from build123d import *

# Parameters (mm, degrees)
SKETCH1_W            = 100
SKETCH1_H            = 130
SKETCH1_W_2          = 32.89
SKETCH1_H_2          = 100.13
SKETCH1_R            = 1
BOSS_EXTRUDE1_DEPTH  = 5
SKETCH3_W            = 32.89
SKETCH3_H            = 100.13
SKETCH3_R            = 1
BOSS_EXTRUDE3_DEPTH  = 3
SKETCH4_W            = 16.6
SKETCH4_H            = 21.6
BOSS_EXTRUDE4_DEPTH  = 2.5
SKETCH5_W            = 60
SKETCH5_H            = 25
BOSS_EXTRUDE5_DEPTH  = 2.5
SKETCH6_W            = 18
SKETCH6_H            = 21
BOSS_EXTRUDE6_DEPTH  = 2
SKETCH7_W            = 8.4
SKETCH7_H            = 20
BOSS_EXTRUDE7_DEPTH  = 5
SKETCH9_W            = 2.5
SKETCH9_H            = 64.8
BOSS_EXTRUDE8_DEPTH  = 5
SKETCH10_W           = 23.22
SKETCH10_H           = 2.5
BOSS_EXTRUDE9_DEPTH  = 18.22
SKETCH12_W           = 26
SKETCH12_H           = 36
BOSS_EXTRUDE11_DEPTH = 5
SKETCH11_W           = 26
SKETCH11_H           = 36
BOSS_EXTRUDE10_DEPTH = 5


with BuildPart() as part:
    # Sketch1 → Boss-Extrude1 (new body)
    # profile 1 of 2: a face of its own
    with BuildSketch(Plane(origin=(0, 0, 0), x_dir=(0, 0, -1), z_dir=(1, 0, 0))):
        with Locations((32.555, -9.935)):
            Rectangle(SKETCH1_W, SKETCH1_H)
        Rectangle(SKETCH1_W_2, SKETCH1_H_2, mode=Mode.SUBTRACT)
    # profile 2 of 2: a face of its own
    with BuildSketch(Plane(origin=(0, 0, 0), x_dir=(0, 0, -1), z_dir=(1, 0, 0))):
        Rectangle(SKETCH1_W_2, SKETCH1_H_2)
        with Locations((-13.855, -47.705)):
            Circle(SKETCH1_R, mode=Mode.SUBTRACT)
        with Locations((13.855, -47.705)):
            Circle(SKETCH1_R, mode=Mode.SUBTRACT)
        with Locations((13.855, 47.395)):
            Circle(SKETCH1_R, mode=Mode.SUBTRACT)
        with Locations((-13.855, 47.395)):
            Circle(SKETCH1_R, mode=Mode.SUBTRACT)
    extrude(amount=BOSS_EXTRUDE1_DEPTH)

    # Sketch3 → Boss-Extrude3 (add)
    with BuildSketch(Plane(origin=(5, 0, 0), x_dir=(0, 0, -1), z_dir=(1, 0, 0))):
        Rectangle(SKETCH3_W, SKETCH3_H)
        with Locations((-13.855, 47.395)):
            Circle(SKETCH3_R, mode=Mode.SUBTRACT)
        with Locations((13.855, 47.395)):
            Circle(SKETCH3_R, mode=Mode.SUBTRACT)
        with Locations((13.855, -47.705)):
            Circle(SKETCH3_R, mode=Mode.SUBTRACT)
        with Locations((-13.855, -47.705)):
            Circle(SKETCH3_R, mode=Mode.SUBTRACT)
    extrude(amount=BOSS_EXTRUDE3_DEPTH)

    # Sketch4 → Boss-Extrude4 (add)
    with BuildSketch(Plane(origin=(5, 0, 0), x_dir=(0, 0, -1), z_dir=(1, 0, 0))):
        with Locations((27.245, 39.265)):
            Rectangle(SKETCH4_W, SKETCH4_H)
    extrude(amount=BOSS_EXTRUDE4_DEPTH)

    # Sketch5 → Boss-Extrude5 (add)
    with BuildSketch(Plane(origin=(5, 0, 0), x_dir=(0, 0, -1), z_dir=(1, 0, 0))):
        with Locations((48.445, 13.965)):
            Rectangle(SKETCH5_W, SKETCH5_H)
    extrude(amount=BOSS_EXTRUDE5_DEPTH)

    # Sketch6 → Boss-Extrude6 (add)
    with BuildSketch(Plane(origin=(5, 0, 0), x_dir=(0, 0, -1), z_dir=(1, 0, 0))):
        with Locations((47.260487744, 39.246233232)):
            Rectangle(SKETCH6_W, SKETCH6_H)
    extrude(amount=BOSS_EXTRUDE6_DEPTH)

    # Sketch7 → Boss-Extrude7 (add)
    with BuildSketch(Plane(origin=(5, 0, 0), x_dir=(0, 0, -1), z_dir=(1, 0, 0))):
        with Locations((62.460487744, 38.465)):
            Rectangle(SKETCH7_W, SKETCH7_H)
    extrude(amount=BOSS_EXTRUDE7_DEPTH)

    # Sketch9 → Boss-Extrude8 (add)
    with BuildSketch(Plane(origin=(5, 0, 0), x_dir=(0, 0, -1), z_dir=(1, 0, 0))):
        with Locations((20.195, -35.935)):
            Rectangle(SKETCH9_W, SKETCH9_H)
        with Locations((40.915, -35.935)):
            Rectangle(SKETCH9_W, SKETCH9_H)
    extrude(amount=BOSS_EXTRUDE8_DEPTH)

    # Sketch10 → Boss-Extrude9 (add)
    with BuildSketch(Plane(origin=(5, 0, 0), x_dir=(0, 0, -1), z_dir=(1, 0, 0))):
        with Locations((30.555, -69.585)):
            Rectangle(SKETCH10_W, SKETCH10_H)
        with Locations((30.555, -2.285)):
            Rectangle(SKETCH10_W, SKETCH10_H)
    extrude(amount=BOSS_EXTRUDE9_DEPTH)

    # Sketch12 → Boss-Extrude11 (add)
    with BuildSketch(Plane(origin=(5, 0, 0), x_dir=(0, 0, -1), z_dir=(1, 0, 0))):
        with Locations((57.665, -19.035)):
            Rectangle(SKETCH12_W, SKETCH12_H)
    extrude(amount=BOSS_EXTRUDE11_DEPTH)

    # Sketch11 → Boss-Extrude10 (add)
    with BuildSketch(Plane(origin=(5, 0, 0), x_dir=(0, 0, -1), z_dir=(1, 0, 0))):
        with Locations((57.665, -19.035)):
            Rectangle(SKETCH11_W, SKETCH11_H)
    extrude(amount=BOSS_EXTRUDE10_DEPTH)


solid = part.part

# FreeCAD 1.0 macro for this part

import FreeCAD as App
import Part
import Sketcher

V = App.Vector


def add_polygon(sketch, points):
    """Adds a closed chain of lines whose ends are joined by coincident constraints."""
    first, n = sketch.GeometryCount, len(points)
    for a, b in zip(points, points[1:] + points[:1]):
        sketch.addGeometry(Part.LineSegment(App.Vector(*a, 0), App.Vector(*b, 0)), False)
    for i in range(n):
        sketch.addConstraint(Sketcher.Constraint("Coincident", first + i, 2, first + (i + 1) % n, 1))

doc = App.newDocument("Part")
params = doc.addObject("Spreadsheet::Sheet", "Params")
for row, (alias, value) in enumerate([
    ("sketch1_diameter", "2 mm"),
    ("sketch1_width", "130 mm"),
    ("sketch1_height", "100 mm"),
    ("pad1_length", "5 mm"),
    ("sketch2_diameter", "2 mm"),
    ("sketch2_width", "100.13 mm"),
    ("sketch2_height", "32.89 mm"),
    ("pad2_length", "3 mm"),
    ("sketch3_width", "21.6 mm"),
    ("sketch3_height", "16.6 mm"),
    ("pad3_length", "2.5 mm"),
    ("sketch4_width", "25 mm"),
    ("sketch4_height", "60 mm"),
    ("pad4_length", "2.5 mm"),
    ("sketch5_width", "21 mm"),
    ("sketch5_height", "18 mm"),
    ("pad5_length", "2 mm"),
    ("sketch6_width", "20 mm"),
    ("sketch6_height", "8.4 mm"),
    ("pad6_length", "5 mm"),
    ("sketch7_width", "64.8 mm"),
    ("sketch7_height", "2.5 mm"),
    ("pad7_length", "5 mm"),
    ("sketch8_width", "2.5 mm"),
    ("sketch8_height", "23.22 mm"),
    ("pad8_length", "18.22 mm"),
    ("sketch9_width", "36 mm"),
    ("sketch9_height", "26 mm"),
    ("pad9_length", "5 mm"),
    ("sketch10_width", "36 mm"),
    ("sketch10_height", "26 mm"),
    ("pad10_length", "5 mm"),
], start=1):
    params.set(f"A{row}", alias)
    params.set(f"B{row}", "=" + value)
    params.setAlias(f"B{row}", alias)

body = doc.addObject("PartDesign::Body", "Body")

# Sketch on YZ plane
sketch1 = body.newObject("Sketcher::SketchObject", "Sketch")
sketch1.AttachmentSupport = (doc.getObject("YZ_Plane"), [""])
sketch1.MapMode = "FlatFace"
add_polygon(sketch1, [(55.1, 17.4), (-74.9, 17.4), (-74.9, -82.6), (55.1, -82.6)])  # lines 0-3
sketch1.addGeometry(Part.Circle(V(-47.7, 13.9, 0), V(0, 0, 1), 1), False)  # 4
sketch1.addGeometry(Part.Circle(V(47.4, -13.9, 0), V(0, 0, 1), 1), False)  # 5
sketch1.addGeometry(Part.Circle(V(-47.7, -13.9, 0), V(0, 0, 1), 1), False)  # 6
sketch1.addGeometry(Part.Circle(V(47.4, 13.9, 0), V(0, 0, 1), 1), False)  # 7
sketch1.addConstraint(Sketcher.Constraint("Horizontal", 0))
sketch1.addConstraint(Sketcher.Constraint("Vertical", 1))
sketch1.addConstraint(Sketcher.Constraint("Horizontal", 2))
sketch1.addConstraint(Sketcher.Constraint("Vertical", 3))
sketch1.addConstraint(Sketcher.Constraint("Equal", 4, 5))
sketch1.addConstraint(Sketcher.Constraint("Equal", 5, 6))
sketch1.addConstraint(Sketcher.Constraint("Equal", 6, 7))
sketch1.addConstraint(Sketcher.Constraint("Symmetric", 4, 3, 6, 3, -1))
sketch1.addConstraint(Sketcher.Constraint("Symmetric", 5, 3, 7, 3, -1))
sketch1.addConstraint(Sketcher.Constraint("Horizontal", 5, 3, 6, 3))
sketch1.addConstraint(Sketcher.Constraint("Diameter", 4, 2.0))
sketch1.addConstraint(Sketcher.Constraint("DistanceX", 0, 2, 0, 1, 130.0))
sketch1.addConstraint(Sketcher.Constraint("DistanceY", 1, 2, 1, 1, 100.0))
sketch1.addConstraint(Sketcher.Constraint("DistanceX", 4, 3, 5, 3, 95.1))
sketch1.addConstraint(Sketcher.Constraint("DistanceY", 6, 3, 0, 2, 31.3))
sketch1.addConstraint(Sketcher.Constraint("DistanceY", 5, 3, 4, 3, 27.71))
sketch1.addConstraint(Sketcher.Constraint("DistanceX", 0, 2, 4, 3, 27.23))
sketch1.addConstraint(Sketcher.Constraint("DistanceX", 4, 3, -1, 1, 47.705))
sketch1.setExpression("Constraints[14]", "Params.sketch1_diameter")
sketch1.setExpression("Constraints[15]", "Params.sketch1_width")
sketch1.setExpression("Constraints[16]", "Params.sketch1_height")
pad1 = body.newObject("PartDesign::Pad", "Pad")
pad1.Profile = sketch1
pad1.setExpression("Length", "Params.pad1_length")

# Sketch on YZ plane
sketch2 = body.newObject("Sketcher::SketchObject", "Sketch001")
sketch2.AttachmentSupport = (doc.getObject("YZ_Plane"), [""])
sketch2.MapMode = "FlatFace"
sketch2.AttachmentOffset = App.Placement(V(0, 0, 5), App.Rotation())
add_polygon(sketch2, [(50.1, 16.4), (-50.1, 16.4), (-50.1, -16.4), (50.1, -16.4)])  # lines 0-3
sketch2.addGeometry(Part.Circle(V(-47.7, 13.9, 0), V(0, 0, 1), 1), False)  # 4
sketch2.addGeometry(Part.Circle(V(-47.7, -13.9, 0), V(0, 0, 1), 1), False)  # 5
sketch2.addGeometry(Part.Circle(V(47.4, 13.9, 0), V(0, 0, 1), 1), False)  # 6
sketch2.addGeometry(Part.Circle(V(47.4, -13.9, 0), V(0, 0, 1), 1), False)  # 7
sketch2.addConstraint(Sketcher.Constraint("Horizontal", 0))
sketch2.addConstraint(Sketcher.Constraint("Vertical", 1))
sketch2.addConstraint(Sketcher.Constraint("Horizontal", 2))
sketch2.addConstraint(Sketcher.Constraint("Vertical", 3))
sketch2.addConstraint(Sketcher.Constraint("Equal", 4, 5))
sketch2.addConstraint(Sketcher.Constraint("Equal", 5, 6))
sketch2.addConstraint(Sketcher.Constraint("Equal", 6, 7))
sketch2.addConstraint(Sketcher.Constraint("Symmetric", 0, 2, 2, 2, -1, 1))
sketch2.addConstraint(Sketcher.Constraint("Symmetric", 4, 3, 5, 3, -1))
sketch2.addConstraint(Sketcher.Constraint("Symmetric", 6, 3, 7, 3, -1))
sketch2.addConstraint(Sketcher.Constraint("Horizontal", 4, 3, 6, 3))
sketch2.addConstraint(Sketcher.Constraint("Diameter", 4, 2.0))
sketch2.addConstraint(Sketcher.Constraint("DistanceX", 0, 2, 0, 1, 100.13))
sketch2.addConstraint(Sketcher.Constraint("DistanceY", 1, 2, 1, 1, 32.89))
sketch2.addConstraint(Sketcher.Constraint("DistanceX", 4, 3, 6, 3, 95.1))
sketch2.addConstraint(Sketcher.Constraint("DistanceY", 5, 3, 0, 2, 30.3))
sketch2.addConstraint(Sketcher.Constraint("DistanceX", 0, 2, 4, 3, 2.36))
sketch2.setExpression("Constraints[15]", "Params.sketch2_diameter")
sketch2.setExpression("Constraints[16]", "Params.sketch2_width")
sketch2.setExpression("Constraints[17]", "Params.sketch2_height")
pad2 = body.newObject("PartDesign::Pad", "Pad001")
pad2.Profile = sketch2
pad2.setExpression("Length", "Params.pad2_length")

# Sketch on YZ plane
sketch3 = body.newObject("Sketcher::SketchObject", "Sketch002")
sketch3.AttachmentSupport = (doc.getObject("YZ_Plane"), [""])
sketch3.MapMode = "FlatFace"
sketch3.AttachmentOffset = App.Placement(V(0, 0, 5), App.Rotation())
add_polygon(sketch3, [(50, -19), (28, -19), (28, -36), (50, -36)])  # lines 0-3
sketch3.addConstraint(Sketcher.Constraint("Horizontal", 0))
sketch3.addConstraint(Sketcher.Constraint("Vertical", 1))
sketch3.addConstraint(Sketcher.Constraint("Horizontal", 2))
sketch3.addConstraint(Sketcher.Constraint("Vertical", 3))
sketch3.addConstraint(Sketcher.Constraint("DistanceX", 0, 2, 0, 1, 21.6))
sketch3.addConstraint(Sketcher.Constraint("DistanceY", 1, 2, 1, 1, 16.6))
sketch3.addConstraint(Sketcher.Constraint("DistanceX", -1, 1, 0, 2, 28.465))
sketch3.addConstraint(Sketcher.Constraint("DistanceY", 0, 2, -1, 1, 18.945))
sketch3.setExpression("Constraints[8]", "Params.sketch3_width")
sketch3.setExpression("Constraints[9]", "Params.sketch3_height")
pad3 = body.newObject("PartDesign::Pad", "Pad002")
pad3.Profile = sketch3
pad3.setExpression("Length", "Params.pad3_length")

# Sketch on YZ plane
sketch4 = body.newObject("Sketcher::SketchObject", "Sketch003")
sketch4.AttachmentSupport = (doc.getObject("YZ_Plane"), [""])
sketch4.MapMode = "FlatFace"
sketch4.AttachmentOffset = App.Placement(V(0, 0, 5), App.Rotation())
add_polygon(sketch4, [(26, -18), (1, -18), (1, -78), (26, -78)])  # lines 0-3
sketch4.addConstraint(Sketcher.Constraint("Horizontal", 0))
sketch4.addConstraint(Sketcher.Constraint("Vertical", 1))
sketch4.addConstraint(Sketcher.Constraint("Horizontal", 2))
sketch4.addConstraint(Sketcher.Constraint("Vertical", 3))
sketch4.addConstraint(Sketcher.Constraint("DistanceX", 0, 2, 0, 1, 25.0))
sketch4.addConstraint(Sketcher.Constraint("DistanceY", 1, 2, 1, 1, 60.0))
sketch4.addConstraint(Sketcher.Constraint("DistanceX", -1, 1, 0, 2, 1.465))
sketch4.addConstraint(Sketcher.Constraint("DistanceY", 0, 2, -1, 1, 18.445))
sketch4.setExpression("Constraints[8]", "Params.sketch4_width")
sketch4.setExpression("Constraints[9]", "Params.sketch4_height")
pad4 = body.newObject("PartDesign::Pad", "Pad003")
pad4.Profile = sketch4
pad4.setExpression("Length", "Params.pad4_length")

# Sketch on YZ plane
sketch5 = body.newObject("Sketcher::SketchObject", "Sketch004")
sketch5.AttachmentSupport = (doc.getObject("YZ_Plane"), [""])
sketch5.MapMode = "FlatFace"
sketch5.AttachmentOffset = App.Placement(V(0, 0, 5), App.Rotation())
add_polygon(sketch5, [(50, -38), (29, -38), (29, -56), (50, -56)])  # lines 0-3
sketch5.addConstraint(Sketcher.Constraint("Horizontal", 0))
sketch5.addConstraint(Sketcher.Constraint("Vertical", 1))
sketch5.addConstraint(Sketcher.Constraint("Horizontal", 2))
sketch5.addConstraint(Sketcher.Constraint("Vertical", 3))
sketch5.addConstraint(Sketcher.Constraint("DistanceX", 0, 2, 0, 1, 21.0))
sketch5.addConstraint(Sketcher.Constraint("DistanceY", 1, 2, 1, 1, 18.0))
sketch5.addConstraint(Sketcher.Constraint("DistanceX", -1, 1, 0, 2, 28.746233))
sketch5.addConstraint(Sketcher.Constraint("DistanceY", 0, 2, -1, 1, 38.260488))
sketch5.setExpression("Constraints[8]", "Params.sketch5_width")
sketch5.setExpression("Constraints[9]", "Params.sketch5_height")
pad5 = body.newObject("PartDesign::Pad", "Pad004")
pad5.Profile = sketch5
pad5.setExpression("Length", "Params.pad5_length")

# Sketch on YZ plane
sketch6 = body.newObject("Sketcher::SketchObject", "Sketch005")
sketch6.AttachmentSupport = (doc.getObject("YZ_Plane"), [""])
sketch6.MapMode = "FlatFace"
sketch6.AttachmentOffset = App.Placement(V(0, 0, 5), App.Rotation())
add_polygon(sketch6, [(48, -58), (28, -58), (28, -67), (48, -67)])  # lines 0-3
sketch6.addConstraint(Sketcher.Constraint("Horizontal", 0))
sketch6.addConstraint(Sketcher.Constraint("Vertical", 1))
sketch6.addConstraint(Sketcher.Constraint("Horizontal", 2))
sketch6.addConstraint(Sketcher.Constraint("Vertical", 3))
sketch6.addConstraint(Sketcher.Constraint("DistanceX", 0, 2, 0, 1, 20.0))
sketch6.addConstraint(Sketcher.Constraint("DistanceY", 1, 2, 1, 1, 8.4))
sketch6.addConstraint(Sketcher.Constraint("DistanceX", -1, 1, 0, 2, 28.465))
sketch6.addConstraint(Sketcher.Constraint("DistanceY", 0, 2, -1, 1, 58.260488))
sketch6.setExpression("Constraints[8]", "Params.sketch6_width")
sketch6.setExpression("Constraints[9]", "Params.sketch6_height")
pad6 = body.newObject("PartDesign::Pad", "Pad005")
pad6.Profile = sketch6
pad6.setExpression("Length", "Params.pad6_length")

# Sketch on YZ plane
sketch7 = body.newObject("Sketcher::SketchObject", "Sketch006")
sketch7.AttachmentSupport = (doc.getObject("YZ_Plane"), [""])
sketch7.MapMode = "FlatFace"
sketch7.AttachmentOffset = App.Placement(V(0, 0, 5), App.Rotation())
add_polygon(sketch7, [(-3.5, -18.9), (-68.3, -18.9), (-68.3, -21.4), (-3.5, -21.4)])  # lines 0-3
add_polygon(sketch7, [(-3.5, -39.7), (-68.3, -39.7), (-68.3, -42.2), (-3.5, -42.2)])  # lines 4-7
sketch7.addConstraint(Sketcher.Constraint("Horizontal", 0))
sketch7.addConstraint(Sketcher.Constraint("Vertical", 1))
sketch7.addConstraint(Sketcher.Constraint("Horizontal", 2))
sketch7.addConstraint(Sketcher.Constraint("Vertical", 3))
sketch7.addConstraint(Sketcher.Constraint("Horizontal", 4))
sketch7.addConstraint(Sketcher.Constraint("Vertical", 5))
sketch7.addConstraint(Sketcher.Constraint("Horizontal", 6))
sketch7.addConstraint(Sketcher.Constraint("Vertical", 7))
sketch7.addConstraint(Sketcher.Constraint("Vertical", 1, 2, 4, 2))
sketch7.addConstraint(Sketcher.Constraint("Vertical", 3, 2, 6, 2))
sketch7.addConstraint(Sketcher.Constraint("Equal", 3, 5))
sketch7.addConstraint(Sketcher.Constraint("DistanceX", 0, 2, 0, 1, 64.8))
sketch7.addConstraint(Sketcher.Constraint("DistanceY", 1, 2, 1, 1, 2.5))
sketch7.addConstraint(Sketcher.Constraint("DistanceY", 4, 2, 1, 2, 18.22))
sketch7.addConstraint(Sketcher.Constraint("DistanceX", 0, 2, -1, 1, 68.335))
sketch7.addConstraint(Sketcher.Constraint("DistanceY", 0, 2, -1, 1, 18.945))
sketch7.setExpression("Constraints[19]", "Params.sketch7_width")
sketch7.setExpression("Constraints[20]", "Params.sketch7_height")
pad7 = body.newObject("PartDesign::Pad", "Pad006")
pad7.Profile = sketch7
pad7.setExpression("Length", "Params.pad7_length")

# Sketch on YZ plane
sketch8 = body.newObject("Sketcher::SketchObject", "Sketch007")
sketch8.AttachmentSupport = (doc.getObject("YZ_Plane"), [""])
sketch8.MapMode = "FlatFace"
sketch8.AttachmentOffset = App.Placement(V(0, 0, 5), App.Rotation())
add_polygon(sketch8, [(-68.3, -18.9), (-70.8, -18.9), (-70.8, -42.2), (-68.3, -42.2)])  # lines 0-3
add_polygon(sketch8, [(-1, -18.9), (-3.5, -18.9), (-3.5, -42.2), (-1, -42.2)])  # lines 4-7
sketch8.addConstraint(Sketcher.Constraint("Horizontal", 0))
sketch8.addConstraint(Sketcher.Constraint("Vertical", 1))
sketch8.addConstraint(Sketcher.Constraint("Horizontal", 2))
sketch8.addConstraint(Sketcher.Constraint("Vertical", 3))
sketch8.addConstraint(Sketcher.Constraint("Horizontal", 4))
sketch8.addConstraint(Sketcher.Constraint("Vertical", 5))
sketch8.addConstraint(Sketcher.Constraint("Horizontal", 6))
sketch8.addConstraint(Sketcher.Constraint("Vertical", 7))
sketch8.addConstraint(Sketcher.Constraint("Horizontal", 3, 2, 4, 2))
sketch8.addConstraint(Sketcher.Constraint("Horizontal", 2, 2, 5, 2))
sketch8.addConstraint(Sketcher.Constraint("Equal", 2, 4))
sketch8.addConstraint(Sketcher.Constraint("DistanceX", 0, 2, 0, 1, 2.5))
sketch8.addConstraint(Sketcher.Constraint("DistanceY", 1, 2, 1, 1, 23.22))
sketch8.addConstraint(Sketcher.Constraint("DistanceX", 3, 2, 4, 2, 64.8))
sketch8.addConstraint(Sketcher.Constraint("DistanceX", 0, 2, -1, 1, 70.835))
sketch8.addConstraint(Sketcher.Constraint("DistanceY", 0, 2, -1, 1, 18.945))
sketch8.setExpression("Constraints[19]", "Params.sketch8_width")
sketch8.setExpression("Constraints[20]", "Params.sketch8_height")
pad8 = body.newObject("PartDesign::Pad", "Pad007")
pad8.Profile = sketch8
pad8.setExpression("Length", "Params.pad8_length")

# Sketch on YZ plane
sketch9 = body.newObject("Sketcher::SketchObject", "Sketch008")
sketch9.AttachmentSupport = (doc.getObject("YZ_Plane"), [""])
sketch9.MapMode = "FlatFace"
sketch9.AttachmentOffset = App.Placement(V(0, 0, 5), App.Rotation())
add_polygon(sketch9, [(-1, -45), (-37, -45), (-37, -71), (-1, -71)])  # lines 0-3
sketch9.addConstraint(Sketcher.Constraint("Horizontal", 0))
sketch9.addConstraint(Sketcher.Constraint("Vertical", 1))
sketch9.addConstraint(Sketcher.Constraint("Horizontal", 2))
sketch9.addConstraint(Sketcher.Constraint("Vertical", 3))
sketch9.addConstraint(Sketcher.Constraint("DistanceX", 0, 2, 0, 1, 36.0))
sketch9.addConstraint(Sketcher.Constraint("DistanceY", 1, 2, 1, 1, 26.0))
sketch9.addConstraint(Sketcher.Constraint("DistanceX", 0, 2, -1, 1, 37.035))
sketch9.addConstraint(Sketcher.Constraint("DistanceY", 0, 2, -1, 1, 44.665))
sketch9.setExpression("Constraints[8]", "Params.sketch9_width")
sketch9.setExpression("Constraints[9]", "Params.sketch9_height")
pad9 = body.newObject("PartDesign::Pad", "Pad008")
pad9.Profile = sketch9
pad9.setExpression("Length", "Params.pad9_length")

# Sketch on YZ plane
sketch10 = body.newObject("Sketcher::SketchObject", "Sketch009")
sketch10.AttachmentSupport = (doc.getObject("YZ_Plane"), [""])
sketch10.MapMode = "FlatFace"
sketch10.AttachmentOffset = App.Placement(V(0, 0, 5), App.Rotation())
add_polygon(sketch10, [(-1, -45), (-37, -45), (-37, -71), (-1, -71)])  # lines 0-3
sketch10.addConstraint(Sketcher.Constraint("Horizontal", 0))
sketch10.addConstraint(Sketcher.Constraint("Vertical", 1))
sketch10.addConstraint(Sketcher.Constraint("Horizontal", 2))
sketch10.addConstraint(Sketcher.Constraint("Vertical", 3))
sketch10.addConstraint(Sketcher.Constraint("DistanceX", 0, 2, 0, 1, 36.0))
sketch10.addConstraint(Sketcher.Constraint("DistanceY", 1, 2, 1, 1, 26.0))
sketch10.addConstraint(Sketcher.Constraint("DistanceX", 0, 2, -1, 1, 37.035))
sketch10.addConstraint(Sketcher.Constraint("DistanceY", 0, 2, -1, 1, 44.665))
sketch10.setExpression("Constraints[8]", "Params.sketch10_width")
sketch10.setExpression("Constraints[9]", "Params.sketch10_height")
pad10 = body.newObject("PartDesign::Pad", "Pad009")
pad10.Profile = sketch10
pad10.setExpression("Length", "Params.pad10_length")

doc.recompute()
